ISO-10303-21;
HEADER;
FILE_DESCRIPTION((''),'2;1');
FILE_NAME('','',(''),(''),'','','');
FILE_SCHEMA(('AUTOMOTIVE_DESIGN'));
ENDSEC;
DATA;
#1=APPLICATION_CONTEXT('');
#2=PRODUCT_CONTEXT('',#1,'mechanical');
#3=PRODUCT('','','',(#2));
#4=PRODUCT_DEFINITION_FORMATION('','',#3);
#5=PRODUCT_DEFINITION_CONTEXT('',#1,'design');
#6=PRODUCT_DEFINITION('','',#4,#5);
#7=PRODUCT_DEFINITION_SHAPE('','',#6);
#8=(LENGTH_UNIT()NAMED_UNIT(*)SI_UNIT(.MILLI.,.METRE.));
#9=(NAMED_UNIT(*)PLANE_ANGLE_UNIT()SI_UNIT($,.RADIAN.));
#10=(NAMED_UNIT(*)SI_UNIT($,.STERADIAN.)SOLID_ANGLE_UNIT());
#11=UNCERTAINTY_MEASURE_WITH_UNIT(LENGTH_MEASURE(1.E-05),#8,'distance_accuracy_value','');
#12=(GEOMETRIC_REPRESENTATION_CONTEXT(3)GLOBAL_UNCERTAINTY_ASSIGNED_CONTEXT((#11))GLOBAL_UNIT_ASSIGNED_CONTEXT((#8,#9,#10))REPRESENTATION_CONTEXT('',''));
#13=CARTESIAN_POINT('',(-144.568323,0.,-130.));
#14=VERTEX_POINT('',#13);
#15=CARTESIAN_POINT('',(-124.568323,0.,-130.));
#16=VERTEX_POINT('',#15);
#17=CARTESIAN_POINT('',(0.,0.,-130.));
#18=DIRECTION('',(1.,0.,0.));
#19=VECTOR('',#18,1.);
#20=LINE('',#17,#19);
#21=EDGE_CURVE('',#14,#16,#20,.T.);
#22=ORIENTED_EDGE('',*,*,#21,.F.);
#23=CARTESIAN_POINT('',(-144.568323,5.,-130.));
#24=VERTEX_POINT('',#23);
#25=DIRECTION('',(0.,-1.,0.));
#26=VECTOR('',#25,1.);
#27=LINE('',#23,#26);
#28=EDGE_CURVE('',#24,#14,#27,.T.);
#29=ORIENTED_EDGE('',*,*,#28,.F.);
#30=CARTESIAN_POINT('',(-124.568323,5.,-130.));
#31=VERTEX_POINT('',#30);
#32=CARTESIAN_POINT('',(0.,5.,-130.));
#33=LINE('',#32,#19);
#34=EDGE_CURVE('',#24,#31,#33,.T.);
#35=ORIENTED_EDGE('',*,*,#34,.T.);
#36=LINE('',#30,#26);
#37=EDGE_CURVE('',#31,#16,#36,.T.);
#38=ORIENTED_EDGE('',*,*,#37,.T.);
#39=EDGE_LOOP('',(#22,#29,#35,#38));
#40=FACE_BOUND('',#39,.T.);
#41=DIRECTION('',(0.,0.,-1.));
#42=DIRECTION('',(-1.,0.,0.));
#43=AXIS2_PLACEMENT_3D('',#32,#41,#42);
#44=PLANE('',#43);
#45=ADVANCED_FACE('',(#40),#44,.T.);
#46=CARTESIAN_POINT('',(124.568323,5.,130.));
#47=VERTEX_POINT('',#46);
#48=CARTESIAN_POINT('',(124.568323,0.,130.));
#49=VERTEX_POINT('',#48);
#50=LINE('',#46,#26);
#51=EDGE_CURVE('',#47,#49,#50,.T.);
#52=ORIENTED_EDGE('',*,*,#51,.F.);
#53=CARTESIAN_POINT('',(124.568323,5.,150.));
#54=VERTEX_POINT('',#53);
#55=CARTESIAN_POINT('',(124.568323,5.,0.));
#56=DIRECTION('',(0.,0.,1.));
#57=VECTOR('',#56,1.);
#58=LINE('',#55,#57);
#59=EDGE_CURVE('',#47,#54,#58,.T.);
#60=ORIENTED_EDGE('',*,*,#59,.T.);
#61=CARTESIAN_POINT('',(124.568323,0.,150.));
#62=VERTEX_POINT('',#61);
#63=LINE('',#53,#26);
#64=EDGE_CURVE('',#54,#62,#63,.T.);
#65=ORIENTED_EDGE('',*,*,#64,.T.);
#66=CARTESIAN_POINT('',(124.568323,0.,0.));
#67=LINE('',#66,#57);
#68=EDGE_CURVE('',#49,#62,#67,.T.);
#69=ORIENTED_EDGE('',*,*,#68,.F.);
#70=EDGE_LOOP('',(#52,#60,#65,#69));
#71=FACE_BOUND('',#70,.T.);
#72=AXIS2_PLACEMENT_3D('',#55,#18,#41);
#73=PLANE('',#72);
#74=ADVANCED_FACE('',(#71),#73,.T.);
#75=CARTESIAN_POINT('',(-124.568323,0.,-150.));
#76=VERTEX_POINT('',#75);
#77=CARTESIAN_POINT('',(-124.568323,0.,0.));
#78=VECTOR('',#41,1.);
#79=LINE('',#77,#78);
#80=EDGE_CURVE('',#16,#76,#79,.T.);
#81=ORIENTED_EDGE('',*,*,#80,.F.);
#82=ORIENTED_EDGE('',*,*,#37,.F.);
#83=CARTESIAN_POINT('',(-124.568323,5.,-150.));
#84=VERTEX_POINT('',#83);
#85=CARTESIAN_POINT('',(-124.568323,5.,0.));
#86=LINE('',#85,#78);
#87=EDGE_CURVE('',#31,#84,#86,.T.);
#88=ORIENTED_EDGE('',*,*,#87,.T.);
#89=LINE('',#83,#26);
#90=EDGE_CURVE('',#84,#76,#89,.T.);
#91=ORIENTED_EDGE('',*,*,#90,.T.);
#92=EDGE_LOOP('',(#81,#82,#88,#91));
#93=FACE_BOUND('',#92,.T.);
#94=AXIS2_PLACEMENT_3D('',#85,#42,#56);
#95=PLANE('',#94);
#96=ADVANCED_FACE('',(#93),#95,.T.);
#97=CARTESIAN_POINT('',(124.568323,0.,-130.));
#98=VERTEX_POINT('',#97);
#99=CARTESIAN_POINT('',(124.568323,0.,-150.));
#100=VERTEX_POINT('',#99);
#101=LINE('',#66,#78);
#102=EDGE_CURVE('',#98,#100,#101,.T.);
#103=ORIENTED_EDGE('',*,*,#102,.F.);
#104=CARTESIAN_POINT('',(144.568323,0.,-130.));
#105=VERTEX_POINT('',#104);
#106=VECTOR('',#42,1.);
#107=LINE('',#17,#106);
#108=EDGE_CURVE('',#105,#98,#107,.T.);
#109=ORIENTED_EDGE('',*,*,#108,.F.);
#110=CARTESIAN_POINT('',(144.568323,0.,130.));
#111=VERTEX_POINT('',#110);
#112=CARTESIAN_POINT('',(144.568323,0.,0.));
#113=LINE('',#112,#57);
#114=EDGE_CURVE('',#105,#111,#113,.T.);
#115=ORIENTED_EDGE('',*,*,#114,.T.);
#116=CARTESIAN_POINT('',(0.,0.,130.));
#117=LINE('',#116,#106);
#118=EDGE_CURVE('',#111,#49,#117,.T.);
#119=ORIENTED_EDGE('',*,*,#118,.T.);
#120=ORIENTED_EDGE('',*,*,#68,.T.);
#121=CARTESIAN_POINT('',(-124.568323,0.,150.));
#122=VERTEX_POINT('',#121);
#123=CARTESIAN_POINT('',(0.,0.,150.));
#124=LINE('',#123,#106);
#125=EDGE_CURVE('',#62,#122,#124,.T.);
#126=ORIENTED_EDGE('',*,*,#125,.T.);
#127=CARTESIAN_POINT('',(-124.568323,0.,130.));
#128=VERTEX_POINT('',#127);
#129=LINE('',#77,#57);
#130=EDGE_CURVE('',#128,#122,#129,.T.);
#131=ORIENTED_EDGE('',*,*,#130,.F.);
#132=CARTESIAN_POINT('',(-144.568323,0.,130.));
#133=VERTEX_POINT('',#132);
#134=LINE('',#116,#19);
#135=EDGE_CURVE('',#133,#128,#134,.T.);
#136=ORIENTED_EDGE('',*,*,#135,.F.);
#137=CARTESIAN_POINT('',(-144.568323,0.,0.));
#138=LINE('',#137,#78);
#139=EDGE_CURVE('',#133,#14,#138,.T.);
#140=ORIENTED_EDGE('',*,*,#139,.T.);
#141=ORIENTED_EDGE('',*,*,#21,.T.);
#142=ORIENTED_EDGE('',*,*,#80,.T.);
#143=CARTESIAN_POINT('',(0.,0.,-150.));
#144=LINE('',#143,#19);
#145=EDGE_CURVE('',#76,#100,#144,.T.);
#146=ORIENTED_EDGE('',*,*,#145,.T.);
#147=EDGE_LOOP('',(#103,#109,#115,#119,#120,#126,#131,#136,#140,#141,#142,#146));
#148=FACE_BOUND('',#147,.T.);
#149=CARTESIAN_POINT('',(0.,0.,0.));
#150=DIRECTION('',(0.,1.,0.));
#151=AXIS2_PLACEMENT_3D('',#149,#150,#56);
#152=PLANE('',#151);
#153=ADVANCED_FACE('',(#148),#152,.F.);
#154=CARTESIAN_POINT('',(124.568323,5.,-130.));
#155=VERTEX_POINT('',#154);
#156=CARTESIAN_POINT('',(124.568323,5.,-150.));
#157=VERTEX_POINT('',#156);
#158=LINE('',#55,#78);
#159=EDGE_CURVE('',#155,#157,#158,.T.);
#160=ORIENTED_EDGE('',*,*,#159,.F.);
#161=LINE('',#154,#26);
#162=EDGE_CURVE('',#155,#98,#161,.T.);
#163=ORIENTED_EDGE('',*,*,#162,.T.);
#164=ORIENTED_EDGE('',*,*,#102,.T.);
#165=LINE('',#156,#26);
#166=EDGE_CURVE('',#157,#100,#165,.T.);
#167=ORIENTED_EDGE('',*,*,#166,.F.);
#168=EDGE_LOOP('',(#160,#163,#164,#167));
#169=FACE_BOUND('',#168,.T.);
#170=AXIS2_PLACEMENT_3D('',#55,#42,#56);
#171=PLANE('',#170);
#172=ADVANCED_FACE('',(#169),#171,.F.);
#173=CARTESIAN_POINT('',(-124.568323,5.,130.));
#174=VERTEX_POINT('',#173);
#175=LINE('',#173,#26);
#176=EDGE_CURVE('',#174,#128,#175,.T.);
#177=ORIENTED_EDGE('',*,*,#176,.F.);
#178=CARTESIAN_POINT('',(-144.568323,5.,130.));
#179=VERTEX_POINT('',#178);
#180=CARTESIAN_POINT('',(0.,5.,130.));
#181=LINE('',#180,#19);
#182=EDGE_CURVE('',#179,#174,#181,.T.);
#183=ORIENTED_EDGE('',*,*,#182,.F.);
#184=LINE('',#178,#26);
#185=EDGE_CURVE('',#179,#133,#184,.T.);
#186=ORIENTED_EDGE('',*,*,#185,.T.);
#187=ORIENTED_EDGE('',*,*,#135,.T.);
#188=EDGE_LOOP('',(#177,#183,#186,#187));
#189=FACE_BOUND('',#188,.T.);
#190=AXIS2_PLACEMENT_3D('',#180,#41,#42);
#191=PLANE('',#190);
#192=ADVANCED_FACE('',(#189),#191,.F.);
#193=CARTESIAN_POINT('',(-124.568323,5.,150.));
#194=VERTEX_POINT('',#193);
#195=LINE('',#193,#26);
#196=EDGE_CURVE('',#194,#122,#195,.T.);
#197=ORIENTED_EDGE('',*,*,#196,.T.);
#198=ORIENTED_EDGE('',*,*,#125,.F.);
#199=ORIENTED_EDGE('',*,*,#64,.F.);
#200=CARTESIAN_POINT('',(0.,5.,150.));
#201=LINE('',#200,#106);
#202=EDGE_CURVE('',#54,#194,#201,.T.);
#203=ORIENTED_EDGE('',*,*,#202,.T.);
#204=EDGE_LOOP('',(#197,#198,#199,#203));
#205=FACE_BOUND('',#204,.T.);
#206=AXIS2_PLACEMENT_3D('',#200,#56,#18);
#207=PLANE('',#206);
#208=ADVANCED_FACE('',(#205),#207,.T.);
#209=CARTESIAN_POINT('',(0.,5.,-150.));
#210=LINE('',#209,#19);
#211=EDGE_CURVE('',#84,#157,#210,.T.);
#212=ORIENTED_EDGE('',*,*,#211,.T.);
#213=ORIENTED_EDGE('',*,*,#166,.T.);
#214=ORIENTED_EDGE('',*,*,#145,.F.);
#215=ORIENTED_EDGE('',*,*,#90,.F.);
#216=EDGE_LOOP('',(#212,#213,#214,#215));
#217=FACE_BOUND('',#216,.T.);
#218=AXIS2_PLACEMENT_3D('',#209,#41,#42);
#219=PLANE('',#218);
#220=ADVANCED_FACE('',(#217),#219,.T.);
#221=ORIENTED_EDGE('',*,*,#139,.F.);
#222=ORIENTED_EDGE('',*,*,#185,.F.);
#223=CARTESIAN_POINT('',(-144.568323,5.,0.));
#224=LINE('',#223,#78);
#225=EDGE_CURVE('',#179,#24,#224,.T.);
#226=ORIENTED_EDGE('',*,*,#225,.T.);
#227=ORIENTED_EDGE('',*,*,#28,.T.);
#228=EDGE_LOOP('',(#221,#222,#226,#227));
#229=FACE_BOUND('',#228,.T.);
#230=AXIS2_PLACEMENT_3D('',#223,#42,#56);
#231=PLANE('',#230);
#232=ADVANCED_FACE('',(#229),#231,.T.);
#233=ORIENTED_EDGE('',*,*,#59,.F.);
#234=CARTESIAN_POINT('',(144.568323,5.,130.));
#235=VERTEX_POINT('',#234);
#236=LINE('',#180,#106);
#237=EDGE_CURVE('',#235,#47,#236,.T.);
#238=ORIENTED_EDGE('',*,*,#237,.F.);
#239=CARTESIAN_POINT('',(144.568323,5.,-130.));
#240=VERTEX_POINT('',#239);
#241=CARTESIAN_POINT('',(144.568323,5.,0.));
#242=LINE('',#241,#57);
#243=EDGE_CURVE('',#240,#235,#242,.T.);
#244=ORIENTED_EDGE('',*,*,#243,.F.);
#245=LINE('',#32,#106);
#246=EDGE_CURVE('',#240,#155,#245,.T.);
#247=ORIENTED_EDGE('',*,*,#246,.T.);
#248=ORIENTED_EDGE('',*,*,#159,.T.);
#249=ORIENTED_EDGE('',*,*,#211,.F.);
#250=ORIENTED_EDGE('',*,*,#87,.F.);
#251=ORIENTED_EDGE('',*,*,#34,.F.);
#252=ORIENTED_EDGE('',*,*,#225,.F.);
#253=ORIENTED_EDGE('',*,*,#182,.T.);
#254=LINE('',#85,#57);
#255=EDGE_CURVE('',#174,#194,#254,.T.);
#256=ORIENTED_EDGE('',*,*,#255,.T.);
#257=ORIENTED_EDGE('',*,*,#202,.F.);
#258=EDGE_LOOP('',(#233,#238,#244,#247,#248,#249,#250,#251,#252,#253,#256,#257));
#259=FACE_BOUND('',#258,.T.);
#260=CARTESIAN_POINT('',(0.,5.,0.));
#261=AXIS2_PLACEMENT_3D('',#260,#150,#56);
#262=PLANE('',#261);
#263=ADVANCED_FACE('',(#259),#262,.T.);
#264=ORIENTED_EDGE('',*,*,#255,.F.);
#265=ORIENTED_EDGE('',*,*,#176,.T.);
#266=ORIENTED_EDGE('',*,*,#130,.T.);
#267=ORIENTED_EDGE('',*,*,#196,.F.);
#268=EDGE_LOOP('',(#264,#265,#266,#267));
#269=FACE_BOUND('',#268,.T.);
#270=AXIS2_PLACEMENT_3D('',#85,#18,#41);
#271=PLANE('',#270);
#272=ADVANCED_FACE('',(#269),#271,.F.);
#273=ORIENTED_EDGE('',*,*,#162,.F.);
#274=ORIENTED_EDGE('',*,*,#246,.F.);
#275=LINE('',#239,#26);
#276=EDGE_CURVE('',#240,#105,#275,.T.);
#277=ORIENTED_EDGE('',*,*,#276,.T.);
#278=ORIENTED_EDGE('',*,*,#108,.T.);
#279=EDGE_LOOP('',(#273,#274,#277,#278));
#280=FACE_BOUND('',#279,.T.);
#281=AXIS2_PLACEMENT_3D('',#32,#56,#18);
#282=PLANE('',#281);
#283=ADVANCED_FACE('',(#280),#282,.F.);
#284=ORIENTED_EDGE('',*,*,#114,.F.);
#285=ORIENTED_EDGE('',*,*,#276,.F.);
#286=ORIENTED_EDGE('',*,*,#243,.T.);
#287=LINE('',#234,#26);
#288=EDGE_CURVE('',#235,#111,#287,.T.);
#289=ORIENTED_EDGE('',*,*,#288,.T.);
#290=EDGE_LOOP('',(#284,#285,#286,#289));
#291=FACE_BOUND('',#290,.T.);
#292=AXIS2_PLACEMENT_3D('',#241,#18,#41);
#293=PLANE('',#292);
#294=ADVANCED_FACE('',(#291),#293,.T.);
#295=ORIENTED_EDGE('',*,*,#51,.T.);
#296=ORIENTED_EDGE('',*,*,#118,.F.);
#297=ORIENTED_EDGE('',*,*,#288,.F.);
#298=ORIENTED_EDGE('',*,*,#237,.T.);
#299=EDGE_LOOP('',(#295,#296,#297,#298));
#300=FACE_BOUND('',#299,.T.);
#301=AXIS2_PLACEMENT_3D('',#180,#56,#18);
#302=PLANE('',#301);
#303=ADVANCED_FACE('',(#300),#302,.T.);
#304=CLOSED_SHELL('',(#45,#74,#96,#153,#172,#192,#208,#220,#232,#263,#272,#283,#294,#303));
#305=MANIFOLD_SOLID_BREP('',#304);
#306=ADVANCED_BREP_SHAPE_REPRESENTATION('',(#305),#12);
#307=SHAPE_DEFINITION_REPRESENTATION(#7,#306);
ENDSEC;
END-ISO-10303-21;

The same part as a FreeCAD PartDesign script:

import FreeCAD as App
import Part
import Sketcher

V = App.Vector
Q = App.Units.Quantity


def add_polygon(sketch, points):
    """Adds a closed chain of lines whose ends are joined by coincident constraints."""
    first, n = sketch.GeometryCount, len(points)
    for a, b in zip(points, points[1:] + points[:1]):
        sketch.addGeometry(Part.LineSegment(App.Vector(*a, 0), App.Vector(*b, 0)), False)
    for i in range(n):
        sketch.addConstraint(Sketcher.Constraint("Coincident", first + i, 2, first + (i + 1) % n, 1))

doc = App.newDocument("Part")
body = doc.addObject("PartDesign::Body", "Body")

# Sketch on XZ plane
sketch1 = body.newObject("Sketcher::SketchObject", "Sketch")
sketch1.AttachmentSupport = (doc.getObject("XZ_Plane"), [""])
sketch1.MapMode = "FlatFace"
add_polygon(sketch1, [(145, -130), (125, -130), (125, -150), (-125, -150), (-125, -130), (-145, -130), (-145, 130), (-125, 130), (-125, 150), (125, 150), (125, 130), (145, 130)])  # lines 0-11
sketch1.addConstraint([
    Sketcher.Constraint("Horizontal", 0),
    Sketcher.Constraint("Vertical", 1),
    Sketcher.Constraint("Horizontal", 2),
    Sketcher.Constraint("Vertical", 3),
    Sketcher.Constraint("Horizontal", 4),
    Sketcher.Constraint("Vertical", 5),
    Sketcher.Constraint("Horizontal", 6),
    Sketcher.Constraint("Vertical", 7),
    Sketcher.Constraint("Horizontal", 8),
    Sketcher.Constraint("Vertical", 9),
    Sketcher.Constraint("Horizontal", 10),
    Sketcher.Constraint("Vertical", 11),
    Sketcher.Constraint("Symmetric", 0, 2, 6, 2, -1, 1),
    Sketcher.Constraint("Symmetric", 2, 2, 8, 2, -1, 1),
    Sketcher.Constraint("Symmetric", 4, 2, 10, 2, -1, 1),
    Sketcher.Constraint("Symmetric", 0, 2, 3, 2, -2),
    Sketcher.Constraint("Equal", 10, 1),
    Sketcher.Constraint("DistanceX", 0, 2, 0, 1, Q("20 mm")),
    Sketcher.Constraint("DistanceY", 5, 1, 5, 2, Q("260 mm")),
    Sketcher.Constraint("DistanceX", 2, 2, 2, 1, Q("249.136646 mm")),
])
pad1 = body.newObject("PartDesign::Pad", "Pad")
pad1.Profile = sketch1
pad1.Length = 5
pad1.Reversed = True

doc.recompute()
